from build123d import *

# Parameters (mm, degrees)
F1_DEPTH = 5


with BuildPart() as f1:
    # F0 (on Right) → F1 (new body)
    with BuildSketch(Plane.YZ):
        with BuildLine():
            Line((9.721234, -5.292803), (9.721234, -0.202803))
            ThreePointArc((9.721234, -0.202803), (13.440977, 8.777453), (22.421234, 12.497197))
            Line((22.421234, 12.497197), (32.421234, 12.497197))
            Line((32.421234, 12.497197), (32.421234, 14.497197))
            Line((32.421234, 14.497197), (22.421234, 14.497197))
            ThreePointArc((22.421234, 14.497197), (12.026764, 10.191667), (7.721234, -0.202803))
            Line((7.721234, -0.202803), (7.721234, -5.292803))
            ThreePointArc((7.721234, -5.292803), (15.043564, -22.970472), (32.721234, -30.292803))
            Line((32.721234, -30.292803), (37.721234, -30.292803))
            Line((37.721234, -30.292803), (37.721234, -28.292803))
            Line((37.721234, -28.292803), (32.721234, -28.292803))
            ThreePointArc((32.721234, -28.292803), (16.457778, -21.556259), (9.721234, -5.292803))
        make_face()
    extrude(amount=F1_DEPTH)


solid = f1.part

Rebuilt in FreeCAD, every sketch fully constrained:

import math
import FreeCAD as App
import Part
import Sketcher

V = App.Vector
Q = App.Units.Quantity

doc = App.newDocument("Part")
body = doc.addObject("PartDesign::Body", "Body")

# Sketch on YZ plane
sketch1 = doc.addObject("Sketcher::SketchObject", "Sketch")
body.addObject(sketch1)
sketch1.AttachmentSupport = (doc.YZ_Plane, [""])
sketch1.MapMode = "FlatFace"
sketch1.addGeometry([
    Part.LineSegment(V(9.721234, -5.292803, 0), V(9.721234, -0.202803, 0)),  # 0
    Part.ArcOfCircle(Part.Circle(V(22.421233, -0.202802, 0), V(0, 0, 1), 12.699999), math.radians(89.999994), math.radians(180.000006)),  # 1
    Part.LineSegment(V(22.421234, 12.497197, 0), V(32.421234, 12.497197, 0)),  # 2
    Part.LineSegment(V(32.421234, 12.497197, 0), V(32.421234, 14.497197, 0)),  # 3
    Part.LineSegment(V(32.421234, 14.497197, 0), V(22.421234, 14.497197, 0)),  # 4
    Part.ArcOfCircle(Part.Circle(V(22.421233, -0.202802, 0), V(0, 0, 1), 14.699999), math.radians(89.999996), math.radians(180.000004)),  # 5
    Part.LineSegment(V(7.721234, -0.202803, 0), V(7.721234, -5.292803, 0)),  # 6
    Part.ArcOfCircle(Part.Circle(V(32.721234, -5.292803, 0), V(0, 0, 1), 25), math.radians(-180), math.radians(-90)),  # 7
    Part.LineSegment(V(32.721234, -30.292803, 0), V(37.721234, -30.292803, 0)),  # 8
    Part.LineSegment(V(37.721234, -30.292803, 0), V(37.721234, -28.292803, 0)),  # 9
    Part.LineSegment(V(37.721234, -28.292803, 0), V(32.721234, -28.292803, 0)),  # 10
    Part.ArcOfCircle(Part.Circle(V(32.721234, -5.292803, 0), V(0, 0, 1), 23), math.radians(180), math.radians(270)),  # 11
], False)
sketch1.addConstraint([
    Sketcher.Constraint("Tangent", 0, 2, 1, 2),
    Sketcher.Constraint("Tangent", 1, 1, 2, 1),
    Sketcher.Constraint("Coincident", 2, 2, 3, 1),
    Sketcher.Constraint("Coincident", 3, 2, 4, 1),
    Sketcher.Constraint("Tangent", 4, 2, 5, 1),
    Sketcher.Constraint("Tangent", 5, 2, 6, 1),
    Sketcher.Constraint("Tangent", 6, 2, 7, 1),
    Sketcher.Constraint("Tangent", 7, 2, 8, 1),
    Sketcher.Constraint("Coincident", 8, 2, 9, 1),
    Sketcher.Constraint("Coincident", 9, 2, 10, 1),
    Sketcher.Constraint("Tangent", 10, 2, 11, 2),
    Sketcher.Constraint("Tangent", 11, 1, 0, 1),
    Sketcher.Constraint("Vertical", 0),
    Sketcher.Constraint("Horizontal", 2),
    Sketcher.Constraint("Vertical", 3),
    Sketcher.Constraint("Horizontal", 4),
    Sketcher.Constraint("Vertical", 6),
    Sketcher.Constraint("Horizontal", 8),
    Sketcher.Constraint("Vertical", 9),
    Sketcher.Constraint("Horizontal", 10),
    Sketcher.Constraint("Coincident", 5, 3, 1, 3),
    Sketcher.Constraint("Coincident", 11, 3, 7, 3),
    Sketcher.Constraint("Radius", 7, Q("25 mm")),
    Sketcher.Constraint("Radius", 11, Q("23 mm")),
    Sketcher.Constraint("Radius", 1, Q("12.699999 mm")),
    Sketcher.Constraint("DistanceX", 2, 1, 2, 2, Q("10 mm")),
    Sketcher.Constraint("DistanceX", 8, 1, 8, 2, Q("5 mm")),
    Sketcher.Constraint("DistanceY", 0, 1, 0, 2, Q("5.09 mm")),
    Sketcher.Constraint("DistanceY", 1, 3, -1, 1, Q("0.202802 mm")),
    Sketcher.Constraint("DistanceX", -1, 1, 1, 3, Q("22.421233 mm")),
])
pad1 = doc.addObject("PartDesign::Pad", "Pad")
body.addObject(pad1)
pad1.Profile = sketch1
pad1.Length = 5

doc.recompute()
